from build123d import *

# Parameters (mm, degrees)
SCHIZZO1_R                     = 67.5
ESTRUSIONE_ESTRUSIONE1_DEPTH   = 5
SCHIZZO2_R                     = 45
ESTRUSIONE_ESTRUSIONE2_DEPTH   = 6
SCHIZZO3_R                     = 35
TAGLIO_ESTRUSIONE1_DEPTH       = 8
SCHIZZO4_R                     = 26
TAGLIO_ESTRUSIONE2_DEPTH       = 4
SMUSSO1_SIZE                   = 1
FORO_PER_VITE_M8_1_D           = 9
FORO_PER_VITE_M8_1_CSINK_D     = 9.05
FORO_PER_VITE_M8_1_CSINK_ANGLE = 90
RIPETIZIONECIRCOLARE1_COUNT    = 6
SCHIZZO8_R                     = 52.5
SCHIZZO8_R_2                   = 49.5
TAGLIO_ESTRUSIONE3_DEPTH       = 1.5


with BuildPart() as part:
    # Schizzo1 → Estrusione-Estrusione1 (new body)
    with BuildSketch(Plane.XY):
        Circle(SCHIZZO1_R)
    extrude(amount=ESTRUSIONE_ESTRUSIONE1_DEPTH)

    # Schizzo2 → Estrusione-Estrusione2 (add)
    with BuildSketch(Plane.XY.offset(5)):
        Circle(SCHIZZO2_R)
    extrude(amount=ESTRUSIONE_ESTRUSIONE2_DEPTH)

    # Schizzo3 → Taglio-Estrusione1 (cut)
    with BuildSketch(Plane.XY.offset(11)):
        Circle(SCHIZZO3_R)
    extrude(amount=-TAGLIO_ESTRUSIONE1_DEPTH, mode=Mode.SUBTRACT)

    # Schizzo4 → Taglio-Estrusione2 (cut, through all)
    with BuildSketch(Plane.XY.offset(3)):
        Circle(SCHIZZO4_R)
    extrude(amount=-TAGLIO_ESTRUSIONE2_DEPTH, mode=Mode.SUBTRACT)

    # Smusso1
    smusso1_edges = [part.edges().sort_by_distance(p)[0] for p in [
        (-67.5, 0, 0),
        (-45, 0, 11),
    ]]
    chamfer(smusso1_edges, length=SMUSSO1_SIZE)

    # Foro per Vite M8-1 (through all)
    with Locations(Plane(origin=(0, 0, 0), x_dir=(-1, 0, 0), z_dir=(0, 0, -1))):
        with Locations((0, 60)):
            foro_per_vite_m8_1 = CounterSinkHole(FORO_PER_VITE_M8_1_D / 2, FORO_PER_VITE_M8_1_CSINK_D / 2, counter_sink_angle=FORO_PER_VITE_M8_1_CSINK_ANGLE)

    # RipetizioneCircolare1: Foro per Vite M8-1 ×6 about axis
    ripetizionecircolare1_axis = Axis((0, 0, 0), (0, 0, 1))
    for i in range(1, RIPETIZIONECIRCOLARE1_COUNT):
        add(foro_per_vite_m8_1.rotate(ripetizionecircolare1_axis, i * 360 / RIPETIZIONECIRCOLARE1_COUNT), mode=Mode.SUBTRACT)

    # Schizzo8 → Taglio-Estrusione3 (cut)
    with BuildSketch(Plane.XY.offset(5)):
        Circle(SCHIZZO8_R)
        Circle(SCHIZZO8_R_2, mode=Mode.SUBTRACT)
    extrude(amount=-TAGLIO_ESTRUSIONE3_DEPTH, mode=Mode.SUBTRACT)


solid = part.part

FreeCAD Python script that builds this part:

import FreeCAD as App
import Part
import Sketcher

V = App.Vector
Q = App.Units.Quantity


def edges_at(feature, points):
    """Names of the edges that pass closest to the given points."""
    edges = feature.Shape.Edges
    near = lambda p: min(range(len(edges)), key=lambda i: edges[i].distToShape(Part.Vertex(*p))[0])
    return sorted({f"Edge{near(p) + 1}" for p in points})

doc = App.newDocument("Part")
params = doc.addObject("Spreadsheet::Sheet", "Params")
for row, (alias, value) in enumerate([
    ("sketch1_diameter", "135 mm"),
    ("pad1_length", "5 mm"),
    ("sketch2_diameter", "90 mm"),
    ("pad2_length", "6 mm"),
    ("sketch3_diameter", "70 mm"),
    ("pocket1_length", "8 mm"),
    ("sketch4_diameter", "52 mm"),
    ("chamfer_size", "1 mm"),
    ("sketch5_diameter", "9 mm"),
    ("hole_diameter", "9 mm"),
    ("hole_csink_diameter", "9.05 mm"),
    ("sketch6_diameter", "105 mm"),
    ("sketch6_diameter2", "99 mm"),
    ("pocket3_length", "1.5 mm"),
], start=1):
    params.set(f"A{row}", alias)
    params.set(f"B{row}", "=" + value)
    params.setAlias(f"B{row}", alias)

body = doc.addObject("PartDesign::Body", "Body")

sketch1 = doc.addObject("Sketcher::SketchObject", "Sketch")
body.addObject(sketch1)
sketch1.AttachmentSupport = (doc.XY_Plane, [""])
sketch1.MapMode = "FlatFace"
sketch1.addGeometry(Part.Circle(V(0, 0, 0), V(0, 0, 1), 67.5), False)
sketch1.addConstraint(Sketcher.Constraint("Coincident", 0, 3, -1, 1))
sketch1.addConstraint(Sketcher.Constraint("Diameter", 0, Q("135 mm")))
sketch1.setExpression("Constraints[1]", "Params.sketch1_diameter")
pad1 = doc.addObject("PartDesign::Pad", "Pad")
body.addObject(pad1)
pad1.Profile = sketch1
pad1.setExpression("Length", "Params.pad1_length")

sketch2 = doc.addObject("Sketcher::SketchObject", "Sketch001")
body.addObject(sketch2)
sketch2.AttachmentSupport = (doc.XY_Plane, [""])
sketch2.MapMode = "FlatFace"
sketch2.AttachmentOffset = App.Placement(V(0, 0, 5), App.Rotation())
sketch2.addGeometry(Part.Circle(V(0, 0, 0), V(0, 0, 1), 45), False)
sketch2.addConstraint(Sketcher.Constraint("Coincident", 0, 3, -1, 1))
sketch2.addConstraint(Sketcher.Constraint("Diameter", 0, Q("90 mm")))
sketch2.setExpression("Constraints[1]", "Params.sketch2_diameter")
pad2 = doc.addObject("PartDesign::Pad", "Pad001")
body.addObject(pad2)
pad2.Profile = sketch2
pad2.setExpression("Length", "Params.pad2_length")

sketch3 = doc.addObject("Sketcher::SketchObject", "Sketch002")
body.addObject(sketch3)
sketch3.AttachmentSupport = (doc.XY_Plane, [""])
sketch3.MapMode = "FlatFace"
sketch3.AttachmentOffset = App.Placement(V(0, 0, 11), App.Rotation())
sketch3.addGeometry(Part.Circle(V(0, 0, 0), V(0, 0, 1), 35), False)
sketch3.addConstraint(Sketcher.Constraint("Coincident", 0, 3, -1, 1))
sketch3.addConstraint(Sketcher.Constraint("Diameter", 0, Q("70 mm")))
sketch3.setExpression("Constraints[1]", "Params.sketch3_diameter")
pocket1 = doc.addObject("PartDesign::Pocket", "Pocket")
body.addObject(pocket1)
pocket1.Profile = sketch3
pocket1.setExpression("Length", "Params.pocket1_length")

sketch4 = doc.addObject("Sketcher::SketchObject", "Sketch003")
body.addObject(sketch4)
sketch4.AttachmentSupport = (doc.XY_Plane, [""])
sketch4.MapMode = "FlatFace"
sketch4.AttachmentOffset = App.Placement(V(0, 0, 3), App.Rotation())
sketch4.addGeometry(Part.Circle(V(0, 0, 0), V(0, 0, 1), 26), False)
sketch4.addConstraint(Sketcher.Constraint("Coincident", 0, 3, -1, 1))
sketch4.addConstraint(Sketcher.Constraint("Diameter", 0, Q("52 mm")))
sketch4.setExpression("Constraints[1]", "Params.sketch4_diameter")
pocket2 = doc.addObject("PartDesign::Pocket", "Pocket001")
body.addObject(pocket2)
pocket2.Profile = sketch4
pocket2.Type = "ThroughAll"
doc.recompute()

chamfer = doc.addObject("PartDesign::Chamfer", "Chamfer")
body.addObject(chamfer)
chamfer.Base = (pocket2, edges_at(pocket2, [(-67.5, 0, 0), (-45, 0, 11)]))
chamfer.setExpression("Size", "Params.chamfer_size")

sketch5 = doc.addObject("Sketcher::SketchObject", "Sketch004")
body.addObject(sketch5)
sketch5.AttachmentSupport = (doc.XY_Plane, [""])
sketch5.MapMode = "FlatFace"
sketch5.addGeometry(Part.Circle(V(0, 60, 0), V(0, 0, 1), 4.5), False)
sketch5.addConstraint(Sketcher.Constraint("PointOnObject", 0, 3, -2))
sketch5.addConstraint(Sketcher.Constraint("Diameter", 0, Q("9 mm")))
sketch5.addConstraint(Sketcher.Constraint("DistanceY", -1, 1, 0, 3, Q("60 mm")))
sketch5.setExpression("Constraints[1]", "Params.sketch5_diameter")
doc.recompute()
hole = doc.addObject("PartDesign::Hole", "Hole")
body.addObject(hole)
hole.Profile = sketch5
hole.ThreadType = "None"
hole.setExpression("Diameter", "Params.hole_diameter")
hole.DepthType = "ThroughAll"
hole.HoleCutType = "Countersink"
hole.setExpression("HoleCutDiameter", "Params.hole_csink_diameter")
hole.HoleCutCountersinkAngle = 90
hole.Reversed = True
doc.recompute()

polarpattern = doc.addObject("PartDesign::PolarPattern", "PolarPattern")
body.addObject(polarpattern)
polarpattern.Originals = [hole]
polarpattern.Axis = (doc.Z_Axis, [""])
polarpattern.Angle = 360
polarpattern.Occurrences = 6
body.Tip = polarpattern

sketch6 = doc.addObject("Sketcher::SketchObject", "Sketch005")
body.addObject(sketch6)
sketch6.AttachmentSupport = (doc.XY_Plane, [""])
sketch6.MapMode = "FlatFace"
sketch6.AttachmentOffset = App.Placement(V(0, 0, 5), App.Rotation())
sketch6.addGeometry(Part.Circle(V(0, 0, 0), V(0, 0, 1), 52.5), False)
sketch6.addGeometry(Part.Circle(V(0, 0, 0), V(0, 0, 1), 49.5), False)
sketch6.addConstraint(Sketcher.Constraint("Coincident", 0, 3, -1, 1))
sketch6.addConstraint(Sketcher.Constraint("Coincident", 1, 3, -1, 1))
sketch6.addConstraint(Sketcher.Constraint("Diameter", 0, Q("105 mm")))
sketch6.addConstraint(Sketcher.Constraint("Diameter", 1, Q("99 mm")))
sketch6.setExpression("Constraints[2]", "Params.sketch6_diameter")
sketch6.setExpression("Constraints[3]", "Params.sketch6_diameter2")
pocket3 = doc.addObject("PartDesign::Pocket", "Pocket002")
body.addObject(pocket3)
pocket3.Profile = sketch6
pocket3.setExpression("Length", "Params.pocket3_length")

doc.recompute()
